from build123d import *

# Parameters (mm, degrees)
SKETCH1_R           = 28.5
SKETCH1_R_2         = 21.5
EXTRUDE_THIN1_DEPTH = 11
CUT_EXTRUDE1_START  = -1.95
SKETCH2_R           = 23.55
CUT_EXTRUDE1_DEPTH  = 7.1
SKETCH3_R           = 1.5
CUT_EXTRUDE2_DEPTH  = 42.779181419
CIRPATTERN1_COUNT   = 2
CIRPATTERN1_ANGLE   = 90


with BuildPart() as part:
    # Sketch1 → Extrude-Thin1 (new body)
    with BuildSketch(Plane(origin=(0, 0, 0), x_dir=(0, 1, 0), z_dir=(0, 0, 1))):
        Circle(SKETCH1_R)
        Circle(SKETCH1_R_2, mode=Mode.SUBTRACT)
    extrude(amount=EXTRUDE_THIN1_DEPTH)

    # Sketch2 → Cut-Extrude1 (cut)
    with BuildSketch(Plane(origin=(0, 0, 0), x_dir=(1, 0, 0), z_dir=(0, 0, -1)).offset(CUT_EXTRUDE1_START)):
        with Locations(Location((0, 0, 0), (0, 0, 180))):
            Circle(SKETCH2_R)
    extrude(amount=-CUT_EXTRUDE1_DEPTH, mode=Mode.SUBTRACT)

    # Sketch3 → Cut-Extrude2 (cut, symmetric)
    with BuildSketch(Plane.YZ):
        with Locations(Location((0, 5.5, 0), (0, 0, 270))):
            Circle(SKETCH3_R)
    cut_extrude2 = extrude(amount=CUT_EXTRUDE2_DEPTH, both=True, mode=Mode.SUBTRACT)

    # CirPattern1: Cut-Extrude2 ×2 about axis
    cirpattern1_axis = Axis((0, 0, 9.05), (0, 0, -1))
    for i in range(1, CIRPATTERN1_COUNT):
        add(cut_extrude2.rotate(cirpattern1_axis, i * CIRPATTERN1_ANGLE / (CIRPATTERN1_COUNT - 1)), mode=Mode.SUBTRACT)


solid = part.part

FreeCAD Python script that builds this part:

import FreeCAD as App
import Part
import Sketcher
from FreeCAD import Vector
Q = App.Units.Quantity

doc = App.newDocument("Part")
body = doc.addObject("PartDesign::Body", "Body")

sketch1 = body.newObject("Sketcher::SketchObject", "Sketch")
sketch1.AttachmentSupport = (doc.getObject("XY_Plane"), [""])
sketch1.MapMode = "FlatFace"
sketch1.addGeometry(Part.Circle(Vector(0, 0, 0), Vector(0, 0, 1), 28), False)
sketch1.addGeometry(Part.Circle(Vector(0, 0, 0), Vector(0, 0, 1), 22), False)
sketch1.addConstraint(Sketcher.Constraint("Coincident", 0, 3, -1, 1))
sketch1.addConstraint(Sketcher.Constraint("Coincident", 1, 3, -1, 1))
sketch1.addConstraint(Sketcher.Constraint("Diameter", 0, Q("57 mm")))
sketch1.addConstraint(Sketcher.Constraint("Diameter", 1, Q("43 mm")))
pad1 = body.newObject("PartDesign::Pad", "Pad")
pad1.Profile = sketch1
pad1.Length = 11

sketch2 = body.newObject("Sketcher::SketchObject", "Sketch001")
sketch2.AttachmentSupport = (doc.getObject("XY_Plane"), [""])
sketch2.MapMode = "FlatFace"
sketch2.AttachmentOffset = App.Placement(Vector(0, 0, 1.95), App.Rotation())
sketch2.addGeometry(Part.Circle(Vector(0, 0, 0), Vector(0, 0, 1), 24), False)
sketch2.addConstraint(Sketcher.Constraint("Coincident", 0, 3, -1, 1))
sketch2.addConstraint(Sketcher.Constraint("Diameter", 0, Q("47.1 mm")))
pocket1 = body.newObject("PartDesign::Pocket", "Pocket")
pocket1.Profile = sketch2
pocket1.Length = 7.1
pocket1.Reversed = True

sketch3 = body.newObject("Sketcher::SketchObject", "Sketch002")
sketch3.AttachmentSupport = (doc.getObject("YZ_Plane"), [""])
sketch3.MapMode = "FlatFace"
sketch3.addGeometry(Part.Circle(Vector(0, 5.5, 0), Vector(0, 0, 1), 1.5), False)
sketch3.addConstraint(Sketcher.Constraint("PointOnObject", 0, 3, -2))
sketch3.addConstraint(Sketcher.Constraint("Diameter", 0, Q("3 mm")))
sketch3.addConstraint(Sketcher.Constraint("DistanceY", -1, 1, 0, 3, Q("5.5 mm")))
pocket2 = body.newObject("PartDesign::Pocket", "Pocket001")
pocket2.Profile = sketch3
pocket2.Length = 85.558363
pocket2.Midplane = True
doc.recompute()

polarpattern = body.newObject("PartDesign::PolarPattern", "PolarPattern")
polarpattern.Originals = [pocket2]
polarpattern.Axis = (doc.getObject("Z_Axis"), [""])
polarpattern.Angle = 90
polarpattern.Occurrences = 2
polarpattern.Reversed = True
body.Tip = polarpattern

doc.recompute()
